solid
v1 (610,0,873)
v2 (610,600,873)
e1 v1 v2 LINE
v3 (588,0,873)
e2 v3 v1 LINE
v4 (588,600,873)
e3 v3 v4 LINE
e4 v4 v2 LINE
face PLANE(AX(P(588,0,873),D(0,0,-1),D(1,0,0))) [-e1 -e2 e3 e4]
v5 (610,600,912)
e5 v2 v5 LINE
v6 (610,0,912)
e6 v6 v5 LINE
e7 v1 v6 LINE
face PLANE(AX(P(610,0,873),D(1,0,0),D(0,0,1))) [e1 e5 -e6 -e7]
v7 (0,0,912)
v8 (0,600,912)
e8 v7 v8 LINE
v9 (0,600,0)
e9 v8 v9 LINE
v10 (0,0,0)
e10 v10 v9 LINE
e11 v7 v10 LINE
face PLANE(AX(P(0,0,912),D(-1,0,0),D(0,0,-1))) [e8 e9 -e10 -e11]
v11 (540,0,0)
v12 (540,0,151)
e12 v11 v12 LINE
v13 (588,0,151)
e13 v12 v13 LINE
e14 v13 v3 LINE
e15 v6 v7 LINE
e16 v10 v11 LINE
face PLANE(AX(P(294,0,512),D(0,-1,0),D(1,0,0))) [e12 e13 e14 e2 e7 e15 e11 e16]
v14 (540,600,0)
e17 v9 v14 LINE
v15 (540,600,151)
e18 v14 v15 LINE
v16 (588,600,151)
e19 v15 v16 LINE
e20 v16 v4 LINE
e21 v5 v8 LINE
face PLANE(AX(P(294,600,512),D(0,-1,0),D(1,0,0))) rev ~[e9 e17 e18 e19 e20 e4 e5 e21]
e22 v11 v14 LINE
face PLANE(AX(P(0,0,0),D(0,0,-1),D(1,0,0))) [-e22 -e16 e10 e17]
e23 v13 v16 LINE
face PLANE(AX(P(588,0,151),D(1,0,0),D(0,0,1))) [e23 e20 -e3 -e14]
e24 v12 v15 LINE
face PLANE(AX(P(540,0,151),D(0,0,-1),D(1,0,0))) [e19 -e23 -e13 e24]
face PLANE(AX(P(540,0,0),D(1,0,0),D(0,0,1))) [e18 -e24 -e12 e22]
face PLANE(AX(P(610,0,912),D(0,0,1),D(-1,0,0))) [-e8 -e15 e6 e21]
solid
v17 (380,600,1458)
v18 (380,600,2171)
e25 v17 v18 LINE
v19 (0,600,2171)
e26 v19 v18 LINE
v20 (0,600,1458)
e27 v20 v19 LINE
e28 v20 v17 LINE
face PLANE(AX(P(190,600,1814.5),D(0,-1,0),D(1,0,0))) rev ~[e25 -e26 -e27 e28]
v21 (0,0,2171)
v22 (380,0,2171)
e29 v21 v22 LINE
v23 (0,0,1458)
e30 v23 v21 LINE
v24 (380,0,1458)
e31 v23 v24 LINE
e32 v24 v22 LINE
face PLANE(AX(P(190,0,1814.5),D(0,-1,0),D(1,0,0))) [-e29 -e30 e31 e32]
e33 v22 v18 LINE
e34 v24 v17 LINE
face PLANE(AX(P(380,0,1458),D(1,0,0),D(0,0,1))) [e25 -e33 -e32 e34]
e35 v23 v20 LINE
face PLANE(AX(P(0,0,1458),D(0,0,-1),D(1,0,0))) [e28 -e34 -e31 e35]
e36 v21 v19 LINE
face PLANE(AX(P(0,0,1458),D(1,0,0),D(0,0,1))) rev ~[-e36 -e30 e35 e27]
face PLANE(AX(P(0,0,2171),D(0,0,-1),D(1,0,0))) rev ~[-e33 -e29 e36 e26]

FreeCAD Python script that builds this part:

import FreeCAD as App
import Part
import Sketcher


def add_polygon(sketch, points):
    """Adds a closed chain of lines whose ends are joined by coincident constraints."""
    first, n = sketch.GeometryCount, len(points)
    for a, b in zip(points, points[1:] + points[:1]):
        sketch.addGeometry(Part.LineSegment(App.Vector(*a, 0), App.Vector(*b, 0)), False)
    for i in range(n):
        sketch.addConstraint(Sketcher.Constraint("Coincident", first + i, 2, first + (i + 1) % n, 1))

doc = App.newDocument("Part")
body = doc.addObject("PartDesign::Body", "Body")
body.AllowCompound = True

# Sketch on XZ plane
sketch1 = body.newObject("Sketcher::SketchObject", "Sketch")
sketch1.AttachmentSupport = (doc.getObject("XZ_Plane"), [""])
sketch1.MapMode = "FlatFace"
add_polygon(sketch1, [(540, 151), (588, 151), (588, 873), (610, 873), (610, 912), (0, 912), (0, 0), (540, 0)])  # lines 0-7
add_polygon(sketch1, [(0, 2171), (0, 1458), (380, 1458), (380, 2171)])  # lines 8-11
sketch1.addConstraint(Sketcher.Constraint("Horizontal", 0))
sketch1.addConstraint(Sketcher.Constraint("Vertical", 1))
sketch1.addConstraint(Sketcher.Constraint("Horizontal", 2))
sketch1.addConstraint(Sketcher.Constraint("Vertical", 3))
sketch1.addConstraint(Sketcher.Constraint("Horizontal", 4))
sketch1.addConstraint(Sketcher.Constraint("Vertical", 5))
sketch1.addConstraint(Sketcher.Constraint("Horizontal", 6))
sketch1.addConstraint(Sketcher.Constraint("Vertical", 7))
sketch1.addConstraint(Sketcher.Constraint("Vertical", 8))
sketch1.addConstraint(Sketcher.Constraint("Horizontal", 9))
sketch1.addConstraint(Sketcher.Constraint("Vertical", 10))
sketch1.addConstraint(Sketcher.Constraint("Horizontal", 11))
sketch1.addConstraint(Sketcher.Constraint("Coincident", 5, 2, -1, 1))
sketch1.addConstraint(Sketcher.Constraint("PointOnObject", 8, 2, -2))
sketch1.addConstraint(Sketcher.Constraint("DistanceX", 0, 1, 0, 2, 48.0))
sketch1.addConstraint(Sketcher.Constraint("DistanceX", 2, 1, 2, 2, 22.0))
sketch1.addConstraint(Sketcher.Constraint("DistanceX", 4, 2, 4, 1, 610.0))
sketch1.addConstraint(Sketcher.Constraint("DistanceX", 9, 1, 9, 2, 380.0))
sketch1.addConstraint(Sketcher.Constraint("DistanceY", 1, 1, 1, 2, 722.0))
sketch1.addConstraint(Sketcher.Constraint("DistanceY", 3, 1, 3, 2, 39.0))
sketch1.addConstraint(Sketcher.Constraint("DistanceY", 5, 2, 5, 1, 912.0))
sketch1.addConstraint(Sketcher.Constraint("DistanceY", 8, 2, 8, 1, 713.0))
sketch1.addConstraint(Sketcher.Constraint("DistanceY", -1, 1, 8, 2, 1458.0))
pad1 = body.newObject("PartDesign::Pad", "Pad")
pad1.Profile = sketch1
pad1.Length = 600
pad1.Reversed = True

doc.recompute()
